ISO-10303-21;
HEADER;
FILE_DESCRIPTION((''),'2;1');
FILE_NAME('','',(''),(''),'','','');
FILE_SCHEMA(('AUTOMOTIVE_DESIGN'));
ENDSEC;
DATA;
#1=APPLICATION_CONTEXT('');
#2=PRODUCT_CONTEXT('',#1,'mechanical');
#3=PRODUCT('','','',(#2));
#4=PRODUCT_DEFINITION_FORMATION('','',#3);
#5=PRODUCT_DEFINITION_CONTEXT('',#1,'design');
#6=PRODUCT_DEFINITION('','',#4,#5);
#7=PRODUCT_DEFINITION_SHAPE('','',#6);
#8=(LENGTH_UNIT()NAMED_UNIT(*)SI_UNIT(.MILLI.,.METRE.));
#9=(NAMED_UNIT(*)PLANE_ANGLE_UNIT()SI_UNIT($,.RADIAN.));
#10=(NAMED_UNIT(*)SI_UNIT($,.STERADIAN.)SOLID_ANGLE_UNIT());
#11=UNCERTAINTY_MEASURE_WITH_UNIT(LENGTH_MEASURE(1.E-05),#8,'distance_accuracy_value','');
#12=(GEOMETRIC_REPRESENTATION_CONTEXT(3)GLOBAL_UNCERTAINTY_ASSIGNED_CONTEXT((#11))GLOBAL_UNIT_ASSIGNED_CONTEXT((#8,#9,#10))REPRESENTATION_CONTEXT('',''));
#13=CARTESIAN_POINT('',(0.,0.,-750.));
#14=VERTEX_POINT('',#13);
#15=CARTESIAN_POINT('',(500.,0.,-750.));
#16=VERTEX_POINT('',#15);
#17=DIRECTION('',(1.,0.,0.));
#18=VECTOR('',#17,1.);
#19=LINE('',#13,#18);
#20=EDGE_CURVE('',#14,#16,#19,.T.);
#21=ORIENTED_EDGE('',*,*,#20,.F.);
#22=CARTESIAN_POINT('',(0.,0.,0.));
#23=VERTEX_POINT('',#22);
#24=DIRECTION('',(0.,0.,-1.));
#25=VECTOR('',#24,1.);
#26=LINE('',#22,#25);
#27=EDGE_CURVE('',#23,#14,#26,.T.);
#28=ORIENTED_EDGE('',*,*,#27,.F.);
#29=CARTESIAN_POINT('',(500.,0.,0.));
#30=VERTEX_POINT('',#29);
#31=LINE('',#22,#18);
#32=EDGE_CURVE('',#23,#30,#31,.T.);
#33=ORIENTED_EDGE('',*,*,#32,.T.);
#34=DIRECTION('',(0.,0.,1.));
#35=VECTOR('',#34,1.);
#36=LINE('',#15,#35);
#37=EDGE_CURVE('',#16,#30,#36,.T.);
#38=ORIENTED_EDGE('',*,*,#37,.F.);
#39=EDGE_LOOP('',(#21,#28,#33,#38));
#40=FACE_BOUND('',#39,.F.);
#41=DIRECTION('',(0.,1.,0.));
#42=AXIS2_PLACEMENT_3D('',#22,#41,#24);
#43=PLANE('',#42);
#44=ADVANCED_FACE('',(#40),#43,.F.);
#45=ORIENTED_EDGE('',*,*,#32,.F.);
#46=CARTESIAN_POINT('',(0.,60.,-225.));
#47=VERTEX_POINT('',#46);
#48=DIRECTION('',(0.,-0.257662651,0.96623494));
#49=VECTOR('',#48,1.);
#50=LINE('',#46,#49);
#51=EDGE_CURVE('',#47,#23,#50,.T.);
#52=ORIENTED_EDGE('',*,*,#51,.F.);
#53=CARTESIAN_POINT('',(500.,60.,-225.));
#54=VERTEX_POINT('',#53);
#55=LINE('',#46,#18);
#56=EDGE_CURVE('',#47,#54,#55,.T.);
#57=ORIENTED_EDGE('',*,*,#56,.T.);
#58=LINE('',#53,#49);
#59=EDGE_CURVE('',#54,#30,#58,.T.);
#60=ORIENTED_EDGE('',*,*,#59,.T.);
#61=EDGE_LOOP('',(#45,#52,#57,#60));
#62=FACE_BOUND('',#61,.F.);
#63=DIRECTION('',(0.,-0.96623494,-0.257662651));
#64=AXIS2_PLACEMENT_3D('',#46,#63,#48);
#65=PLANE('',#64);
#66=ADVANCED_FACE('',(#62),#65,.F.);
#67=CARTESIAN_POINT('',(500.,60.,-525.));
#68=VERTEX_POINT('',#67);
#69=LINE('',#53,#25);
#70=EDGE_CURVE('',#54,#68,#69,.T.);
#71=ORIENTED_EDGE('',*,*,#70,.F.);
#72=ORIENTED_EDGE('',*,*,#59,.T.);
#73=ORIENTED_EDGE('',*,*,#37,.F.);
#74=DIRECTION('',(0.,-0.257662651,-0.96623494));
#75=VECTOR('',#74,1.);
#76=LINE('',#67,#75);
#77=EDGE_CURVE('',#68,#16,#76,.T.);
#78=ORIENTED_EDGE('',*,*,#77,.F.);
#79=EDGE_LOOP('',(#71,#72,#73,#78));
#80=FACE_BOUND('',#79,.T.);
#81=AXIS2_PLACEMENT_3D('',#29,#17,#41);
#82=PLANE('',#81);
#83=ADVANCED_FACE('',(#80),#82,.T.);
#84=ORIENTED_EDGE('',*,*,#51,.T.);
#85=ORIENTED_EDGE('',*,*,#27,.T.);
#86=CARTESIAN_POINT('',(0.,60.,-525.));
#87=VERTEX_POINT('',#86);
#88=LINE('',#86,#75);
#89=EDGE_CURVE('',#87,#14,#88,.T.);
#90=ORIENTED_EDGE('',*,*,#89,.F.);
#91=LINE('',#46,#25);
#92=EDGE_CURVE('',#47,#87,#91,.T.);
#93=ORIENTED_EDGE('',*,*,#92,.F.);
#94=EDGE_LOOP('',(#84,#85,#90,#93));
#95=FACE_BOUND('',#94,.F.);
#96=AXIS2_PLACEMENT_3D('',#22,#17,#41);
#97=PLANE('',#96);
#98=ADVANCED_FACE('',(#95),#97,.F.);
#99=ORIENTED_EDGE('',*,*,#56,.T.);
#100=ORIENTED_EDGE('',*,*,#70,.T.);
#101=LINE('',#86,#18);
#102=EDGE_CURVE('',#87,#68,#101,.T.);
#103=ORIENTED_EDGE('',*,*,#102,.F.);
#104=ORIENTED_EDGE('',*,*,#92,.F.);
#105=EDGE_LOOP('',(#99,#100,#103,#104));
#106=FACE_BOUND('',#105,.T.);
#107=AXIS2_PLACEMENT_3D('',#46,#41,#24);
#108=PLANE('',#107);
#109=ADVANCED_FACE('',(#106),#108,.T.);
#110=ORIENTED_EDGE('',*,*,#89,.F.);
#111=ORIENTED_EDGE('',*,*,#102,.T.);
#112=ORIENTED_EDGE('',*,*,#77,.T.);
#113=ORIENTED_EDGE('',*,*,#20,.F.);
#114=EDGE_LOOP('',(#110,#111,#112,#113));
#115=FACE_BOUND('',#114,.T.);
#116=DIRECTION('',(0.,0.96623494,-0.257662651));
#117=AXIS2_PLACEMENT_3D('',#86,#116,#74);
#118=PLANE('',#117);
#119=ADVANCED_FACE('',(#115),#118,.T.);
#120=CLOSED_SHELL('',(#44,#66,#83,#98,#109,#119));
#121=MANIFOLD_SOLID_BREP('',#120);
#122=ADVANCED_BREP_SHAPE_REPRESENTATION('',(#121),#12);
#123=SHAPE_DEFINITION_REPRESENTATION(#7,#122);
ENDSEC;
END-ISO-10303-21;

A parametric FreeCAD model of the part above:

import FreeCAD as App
import Part
import Sketcher

V = App.Vector
Q = App.Units.Quantity


def add_polygon(sketch, points):
    """Adds a closed chain of lines whose ends are joined by coincident constraints."""
    first, n = sketch.GeometryCount, len(points)
    for a, b in zip(points, points[1:] + points[:1]):
        sketch.addGeometry(Part.LineSegment(App.Vector(*a, 0), App.Vector(*b, 0)), False)
    for i in range(n):
        sketch.addConstraint(Sketcher.Constraint("Coincident", first + i, 2, first + (i + 1) % n, 1))

doc = App.newDocument("Part")
params = doc.addObject("Spreadsheet::Sheet", "Params")
for row, (alias, value) in enumerate([
    ("sketch1_height", "300 mm"),
    ("pad1_length", "500 mm"),
], start=1):
    params.set(f"A{row}", alias)
    params.set(f"B{row}", "=" + value)
    params.setAlias(f"B{row}", alias)

body = doc.addObject("PartDesign::Body", "Body")

# Sketch on YZ plane
sketch1 = doc.addObject("Sketcher::SketchObject", "Sketch")
body.addObject(sketch1)
sketch1.AttachmentSupport = (doc.YZ_Plane, [""])
sketch1.MapMode = "FlatFace"
add_polygon(sketch1, [(60, -225), (0, 0), (0, -750), (60, -525)])  # lines 0-3
sketch1.addConstraint(Sketcher.Constraint("Vertical", 1))
sketch1.addConstraint(Sketcher.Constraint("Vertical", 3))
sketch1.addConstraint(Sketcher.Constraint("Coincident", 0, 2, -1, 1))
sketch1.addConstraint(Sketcher.Constraint("Equal", 0, 2))
sketch1.addConstraint(Sketcher.Constraint("DistanceY", 3, 1, 3, 2, Q("300 mm")))
sketch1.addConstraint(Sketcher.Constraint("DistanceX", -1, 1, 2, 2, Q("60 mm")))
sketch1.addConstraint(Sketcher.Constraint("DistanceY", 3, 2, -1, 1, Q("225 mm")))
sketch1.setExpression("Constraints[8]", "Params.sketch1_height")
pad1 = doc.addObject("PartDesign::Pad", "Pad")
body.addObject(pad1)
pad1.Profile = sketch1
pad1.setExpression("Length", "Params.pad1_length")

doc.recompute()
